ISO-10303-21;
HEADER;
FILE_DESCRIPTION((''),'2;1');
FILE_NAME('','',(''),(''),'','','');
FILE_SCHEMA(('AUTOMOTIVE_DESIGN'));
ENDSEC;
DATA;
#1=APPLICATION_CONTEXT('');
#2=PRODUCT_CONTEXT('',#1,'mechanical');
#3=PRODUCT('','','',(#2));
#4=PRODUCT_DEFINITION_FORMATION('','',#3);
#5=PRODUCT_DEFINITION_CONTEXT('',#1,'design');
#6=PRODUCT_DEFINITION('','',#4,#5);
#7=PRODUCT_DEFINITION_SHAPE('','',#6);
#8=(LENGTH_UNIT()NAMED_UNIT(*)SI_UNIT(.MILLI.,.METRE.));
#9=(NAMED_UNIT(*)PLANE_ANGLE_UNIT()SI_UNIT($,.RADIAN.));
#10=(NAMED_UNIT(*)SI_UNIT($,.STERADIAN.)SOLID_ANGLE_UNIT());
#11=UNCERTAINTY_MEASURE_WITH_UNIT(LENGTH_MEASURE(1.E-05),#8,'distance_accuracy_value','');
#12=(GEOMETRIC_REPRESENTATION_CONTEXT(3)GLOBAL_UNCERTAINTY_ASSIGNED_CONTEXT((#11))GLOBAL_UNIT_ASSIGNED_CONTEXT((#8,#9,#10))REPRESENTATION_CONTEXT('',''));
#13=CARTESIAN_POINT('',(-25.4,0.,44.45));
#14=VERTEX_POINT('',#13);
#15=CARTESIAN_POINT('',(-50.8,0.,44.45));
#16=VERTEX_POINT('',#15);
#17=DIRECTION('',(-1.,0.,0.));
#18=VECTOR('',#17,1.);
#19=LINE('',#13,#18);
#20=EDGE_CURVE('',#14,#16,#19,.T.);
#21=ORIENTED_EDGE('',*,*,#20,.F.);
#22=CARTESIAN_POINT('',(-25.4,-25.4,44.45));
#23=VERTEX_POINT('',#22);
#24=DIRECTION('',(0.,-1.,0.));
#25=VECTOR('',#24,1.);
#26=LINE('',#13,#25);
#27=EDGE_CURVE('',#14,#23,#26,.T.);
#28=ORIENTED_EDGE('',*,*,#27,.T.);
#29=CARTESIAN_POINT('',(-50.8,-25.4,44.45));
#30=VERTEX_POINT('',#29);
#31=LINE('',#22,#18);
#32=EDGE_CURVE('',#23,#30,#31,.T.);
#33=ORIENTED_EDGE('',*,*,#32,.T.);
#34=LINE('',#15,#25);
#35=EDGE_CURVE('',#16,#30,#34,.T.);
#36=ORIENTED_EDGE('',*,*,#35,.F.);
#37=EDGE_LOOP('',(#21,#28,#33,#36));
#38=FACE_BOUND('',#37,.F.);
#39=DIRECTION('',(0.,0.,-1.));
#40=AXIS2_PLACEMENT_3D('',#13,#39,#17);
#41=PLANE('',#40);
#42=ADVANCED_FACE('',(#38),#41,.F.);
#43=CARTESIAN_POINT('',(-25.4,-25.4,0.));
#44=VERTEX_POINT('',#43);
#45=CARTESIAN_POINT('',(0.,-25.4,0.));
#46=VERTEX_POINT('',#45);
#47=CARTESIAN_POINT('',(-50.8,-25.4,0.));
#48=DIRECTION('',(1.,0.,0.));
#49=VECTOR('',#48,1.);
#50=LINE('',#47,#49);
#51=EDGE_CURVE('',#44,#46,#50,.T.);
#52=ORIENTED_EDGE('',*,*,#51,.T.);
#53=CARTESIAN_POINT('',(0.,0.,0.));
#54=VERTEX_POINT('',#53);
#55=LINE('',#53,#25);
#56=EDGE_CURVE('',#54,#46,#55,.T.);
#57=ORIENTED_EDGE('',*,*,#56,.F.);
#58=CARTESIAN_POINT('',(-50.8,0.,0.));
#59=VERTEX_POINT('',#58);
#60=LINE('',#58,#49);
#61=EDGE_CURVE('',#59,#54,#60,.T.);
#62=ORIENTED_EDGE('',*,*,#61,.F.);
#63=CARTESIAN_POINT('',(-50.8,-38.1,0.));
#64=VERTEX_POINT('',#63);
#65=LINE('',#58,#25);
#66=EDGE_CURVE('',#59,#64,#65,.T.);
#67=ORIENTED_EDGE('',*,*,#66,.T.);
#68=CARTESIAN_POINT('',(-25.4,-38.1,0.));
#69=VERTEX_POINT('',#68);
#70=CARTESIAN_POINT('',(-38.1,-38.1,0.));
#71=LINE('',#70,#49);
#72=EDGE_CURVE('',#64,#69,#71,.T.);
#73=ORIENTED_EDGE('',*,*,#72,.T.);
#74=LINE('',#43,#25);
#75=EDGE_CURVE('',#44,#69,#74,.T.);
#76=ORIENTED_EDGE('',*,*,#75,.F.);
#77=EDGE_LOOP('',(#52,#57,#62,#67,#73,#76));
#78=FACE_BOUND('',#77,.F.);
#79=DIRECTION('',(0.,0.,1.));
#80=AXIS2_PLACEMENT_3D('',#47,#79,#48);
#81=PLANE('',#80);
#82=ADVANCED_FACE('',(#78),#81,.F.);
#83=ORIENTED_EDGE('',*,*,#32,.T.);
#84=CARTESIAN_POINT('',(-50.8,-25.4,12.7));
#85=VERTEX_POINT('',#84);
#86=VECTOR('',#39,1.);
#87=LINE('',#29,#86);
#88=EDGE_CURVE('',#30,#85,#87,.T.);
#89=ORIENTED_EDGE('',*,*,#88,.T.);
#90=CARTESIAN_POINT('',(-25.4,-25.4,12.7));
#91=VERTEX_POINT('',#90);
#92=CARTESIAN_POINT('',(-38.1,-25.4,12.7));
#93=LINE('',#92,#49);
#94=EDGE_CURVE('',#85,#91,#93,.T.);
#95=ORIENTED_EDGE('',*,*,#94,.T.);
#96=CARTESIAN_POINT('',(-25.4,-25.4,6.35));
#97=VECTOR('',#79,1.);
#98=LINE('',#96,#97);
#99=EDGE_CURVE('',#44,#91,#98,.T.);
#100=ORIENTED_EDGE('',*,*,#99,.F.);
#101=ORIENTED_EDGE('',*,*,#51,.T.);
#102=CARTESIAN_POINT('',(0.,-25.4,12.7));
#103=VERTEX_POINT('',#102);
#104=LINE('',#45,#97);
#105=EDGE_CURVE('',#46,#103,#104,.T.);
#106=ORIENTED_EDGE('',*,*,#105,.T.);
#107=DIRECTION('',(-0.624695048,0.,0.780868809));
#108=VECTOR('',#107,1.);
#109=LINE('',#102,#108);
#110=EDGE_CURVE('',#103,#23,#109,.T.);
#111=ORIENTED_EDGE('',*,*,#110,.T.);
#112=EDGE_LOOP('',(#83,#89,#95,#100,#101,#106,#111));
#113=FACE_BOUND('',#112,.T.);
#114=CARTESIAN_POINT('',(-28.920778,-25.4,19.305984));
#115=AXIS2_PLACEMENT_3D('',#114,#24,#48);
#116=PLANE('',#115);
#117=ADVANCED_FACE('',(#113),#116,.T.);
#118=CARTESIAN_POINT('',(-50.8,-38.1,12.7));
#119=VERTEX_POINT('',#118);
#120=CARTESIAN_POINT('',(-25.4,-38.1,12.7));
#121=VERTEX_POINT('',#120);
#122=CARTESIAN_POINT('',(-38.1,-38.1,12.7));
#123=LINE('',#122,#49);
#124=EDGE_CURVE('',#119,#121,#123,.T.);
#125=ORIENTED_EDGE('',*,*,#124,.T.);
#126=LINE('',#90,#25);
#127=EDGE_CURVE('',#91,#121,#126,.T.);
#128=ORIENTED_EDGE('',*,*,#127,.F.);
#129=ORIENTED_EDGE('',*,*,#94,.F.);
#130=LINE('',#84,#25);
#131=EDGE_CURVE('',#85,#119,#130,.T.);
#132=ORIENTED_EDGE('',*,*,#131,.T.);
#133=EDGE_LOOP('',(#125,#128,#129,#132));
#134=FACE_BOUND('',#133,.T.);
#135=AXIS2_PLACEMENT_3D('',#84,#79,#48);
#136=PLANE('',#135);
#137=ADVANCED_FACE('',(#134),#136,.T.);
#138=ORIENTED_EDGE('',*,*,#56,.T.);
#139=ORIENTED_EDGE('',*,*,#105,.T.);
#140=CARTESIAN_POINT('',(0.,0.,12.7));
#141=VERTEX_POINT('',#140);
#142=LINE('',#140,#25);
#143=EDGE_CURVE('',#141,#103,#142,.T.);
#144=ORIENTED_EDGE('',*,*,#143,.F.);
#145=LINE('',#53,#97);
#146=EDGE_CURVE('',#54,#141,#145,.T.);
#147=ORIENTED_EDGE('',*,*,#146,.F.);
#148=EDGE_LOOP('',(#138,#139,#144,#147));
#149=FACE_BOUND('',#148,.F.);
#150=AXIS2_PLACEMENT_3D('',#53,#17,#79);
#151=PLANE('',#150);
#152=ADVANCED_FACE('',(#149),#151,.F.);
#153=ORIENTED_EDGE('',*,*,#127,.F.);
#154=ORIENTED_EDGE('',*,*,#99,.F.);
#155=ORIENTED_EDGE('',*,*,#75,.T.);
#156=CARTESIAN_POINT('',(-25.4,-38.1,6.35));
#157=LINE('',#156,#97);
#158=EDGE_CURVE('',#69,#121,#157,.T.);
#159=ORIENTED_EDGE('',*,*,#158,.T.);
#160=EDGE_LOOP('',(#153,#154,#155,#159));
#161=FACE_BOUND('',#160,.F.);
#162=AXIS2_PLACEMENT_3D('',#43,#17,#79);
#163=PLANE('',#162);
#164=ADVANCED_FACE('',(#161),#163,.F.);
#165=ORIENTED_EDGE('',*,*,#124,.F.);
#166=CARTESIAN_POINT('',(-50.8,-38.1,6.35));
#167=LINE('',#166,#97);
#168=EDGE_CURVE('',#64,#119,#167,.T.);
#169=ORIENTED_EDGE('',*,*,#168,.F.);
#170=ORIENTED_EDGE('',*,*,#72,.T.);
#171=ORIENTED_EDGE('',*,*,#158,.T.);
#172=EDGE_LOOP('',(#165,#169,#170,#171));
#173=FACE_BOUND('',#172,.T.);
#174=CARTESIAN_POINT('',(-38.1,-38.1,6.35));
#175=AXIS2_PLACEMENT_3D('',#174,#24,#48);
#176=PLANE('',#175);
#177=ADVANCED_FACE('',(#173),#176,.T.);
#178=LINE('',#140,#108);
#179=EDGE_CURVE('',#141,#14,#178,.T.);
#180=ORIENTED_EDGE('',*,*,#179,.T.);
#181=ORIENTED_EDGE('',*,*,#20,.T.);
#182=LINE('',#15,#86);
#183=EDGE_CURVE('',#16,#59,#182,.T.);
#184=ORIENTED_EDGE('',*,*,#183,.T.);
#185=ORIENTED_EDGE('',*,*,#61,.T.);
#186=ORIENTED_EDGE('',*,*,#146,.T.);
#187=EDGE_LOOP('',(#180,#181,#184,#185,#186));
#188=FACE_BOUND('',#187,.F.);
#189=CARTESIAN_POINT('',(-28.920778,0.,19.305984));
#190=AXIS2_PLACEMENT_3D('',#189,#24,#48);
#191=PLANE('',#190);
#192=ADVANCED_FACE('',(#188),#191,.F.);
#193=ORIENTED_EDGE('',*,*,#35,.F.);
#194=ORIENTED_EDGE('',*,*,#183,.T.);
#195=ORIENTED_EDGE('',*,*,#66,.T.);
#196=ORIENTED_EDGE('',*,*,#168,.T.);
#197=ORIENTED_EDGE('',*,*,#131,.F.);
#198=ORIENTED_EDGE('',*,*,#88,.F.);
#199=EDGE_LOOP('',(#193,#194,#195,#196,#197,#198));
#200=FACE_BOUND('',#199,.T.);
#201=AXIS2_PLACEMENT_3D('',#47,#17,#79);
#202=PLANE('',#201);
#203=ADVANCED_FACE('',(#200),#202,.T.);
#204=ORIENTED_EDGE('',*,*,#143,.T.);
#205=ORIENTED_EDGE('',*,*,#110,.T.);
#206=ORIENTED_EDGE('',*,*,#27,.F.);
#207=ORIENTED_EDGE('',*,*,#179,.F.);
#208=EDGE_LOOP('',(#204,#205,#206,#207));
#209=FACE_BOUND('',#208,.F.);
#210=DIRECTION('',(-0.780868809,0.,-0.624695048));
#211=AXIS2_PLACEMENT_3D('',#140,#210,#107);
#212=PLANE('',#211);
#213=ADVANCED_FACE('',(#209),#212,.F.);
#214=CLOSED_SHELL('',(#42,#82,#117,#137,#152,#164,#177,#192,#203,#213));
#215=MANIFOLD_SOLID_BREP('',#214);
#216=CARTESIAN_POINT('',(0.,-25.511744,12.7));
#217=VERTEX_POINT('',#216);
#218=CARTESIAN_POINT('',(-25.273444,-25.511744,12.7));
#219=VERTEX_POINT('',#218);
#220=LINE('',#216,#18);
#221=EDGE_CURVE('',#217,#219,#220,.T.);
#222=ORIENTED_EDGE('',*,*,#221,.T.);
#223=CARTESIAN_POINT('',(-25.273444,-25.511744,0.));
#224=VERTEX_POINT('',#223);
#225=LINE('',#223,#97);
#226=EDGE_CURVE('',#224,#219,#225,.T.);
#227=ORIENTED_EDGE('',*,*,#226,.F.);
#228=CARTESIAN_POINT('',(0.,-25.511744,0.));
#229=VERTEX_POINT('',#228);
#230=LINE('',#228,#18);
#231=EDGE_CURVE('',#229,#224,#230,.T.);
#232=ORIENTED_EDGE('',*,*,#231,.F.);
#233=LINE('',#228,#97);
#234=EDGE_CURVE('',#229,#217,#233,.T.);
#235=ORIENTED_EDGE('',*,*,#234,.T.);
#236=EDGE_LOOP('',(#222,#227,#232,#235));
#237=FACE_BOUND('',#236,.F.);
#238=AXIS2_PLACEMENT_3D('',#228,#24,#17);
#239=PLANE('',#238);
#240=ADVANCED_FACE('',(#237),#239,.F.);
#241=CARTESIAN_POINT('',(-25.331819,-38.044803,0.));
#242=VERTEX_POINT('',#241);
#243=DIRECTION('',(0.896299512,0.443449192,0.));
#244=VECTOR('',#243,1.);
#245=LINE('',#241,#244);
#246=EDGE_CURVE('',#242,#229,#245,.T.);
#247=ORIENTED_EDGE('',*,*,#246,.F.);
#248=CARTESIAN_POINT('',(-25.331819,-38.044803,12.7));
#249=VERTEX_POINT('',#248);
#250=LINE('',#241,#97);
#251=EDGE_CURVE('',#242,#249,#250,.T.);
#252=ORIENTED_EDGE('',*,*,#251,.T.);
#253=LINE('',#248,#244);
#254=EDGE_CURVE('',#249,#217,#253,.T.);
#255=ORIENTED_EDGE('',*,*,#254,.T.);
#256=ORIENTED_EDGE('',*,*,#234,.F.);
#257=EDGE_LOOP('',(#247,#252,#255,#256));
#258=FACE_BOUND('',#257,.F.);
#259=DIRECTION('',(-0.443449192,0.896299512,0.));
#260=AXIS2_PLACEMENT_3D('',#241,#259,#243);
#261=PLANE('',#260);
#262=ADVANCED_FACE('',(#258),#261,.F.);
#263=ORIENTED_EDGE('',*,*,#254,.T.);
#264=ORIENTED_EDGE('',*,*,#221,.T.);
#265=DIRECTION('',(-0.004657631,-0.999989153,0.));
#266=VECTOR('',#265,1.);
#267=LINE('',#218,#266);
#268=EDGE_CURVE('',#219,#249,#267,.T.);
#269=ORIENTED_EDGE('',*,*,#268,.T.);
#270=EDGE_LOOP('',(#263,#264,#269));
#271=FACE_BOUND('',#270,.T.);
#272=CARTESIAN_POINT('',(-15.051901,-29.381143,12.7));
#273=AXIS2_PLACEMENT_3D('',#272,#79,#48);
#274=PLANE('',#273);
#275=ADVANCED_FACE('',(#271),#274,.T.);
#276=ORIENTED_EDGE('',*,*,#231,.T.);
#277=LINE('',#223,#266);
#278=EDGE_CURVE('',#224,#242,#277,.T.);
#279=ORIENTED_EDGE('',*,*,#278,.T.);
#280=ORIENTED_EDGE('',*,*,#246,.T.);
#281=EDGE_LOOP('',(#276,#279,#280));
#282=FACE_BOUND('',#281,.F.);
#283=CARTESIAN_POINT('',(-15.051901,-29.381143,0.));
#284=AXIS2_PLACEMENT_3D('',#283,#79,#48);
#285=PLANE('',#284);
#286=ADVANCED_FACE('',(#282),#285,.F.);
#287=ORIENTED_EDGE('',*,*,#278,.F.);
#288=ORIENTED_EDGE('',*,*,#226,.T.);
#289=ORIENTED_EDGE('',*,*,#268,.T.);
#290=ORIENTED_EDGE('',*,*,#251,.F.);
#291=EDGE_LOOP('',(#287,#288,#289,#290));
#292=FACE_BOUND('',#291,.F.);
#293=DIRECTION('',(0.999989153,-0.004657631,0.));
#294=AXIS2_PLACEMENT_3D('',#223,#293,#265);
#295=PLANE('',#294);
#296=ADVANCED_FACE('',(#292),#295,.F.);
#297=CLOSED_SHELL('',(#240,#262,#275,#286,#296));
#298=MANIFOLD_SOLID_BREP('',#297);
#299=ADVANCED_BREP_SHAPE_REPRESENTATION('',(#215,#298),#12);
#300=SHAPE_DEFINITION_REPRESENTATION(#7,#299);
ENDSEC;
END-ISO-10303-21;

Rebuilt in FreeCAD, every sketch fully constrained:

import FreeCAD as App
import Part
import Sketcher
Q = App.Units.Quantity


def add_polygon(sketch, points):
    """Adds a closed chain of lines whose ends are joined by coincident constraints."""
    first, n = sketch.GeometryCount, len(points)
    for a, b in zip(points, points[1:] + points[:1]):
        sketch.addGeometry(Part.LineSegment(App.Vector(*a, 0), App.Vector(*b, 0)), False)
    for i in range(n):
        sketch.addConstraint(Sketcher.Constraint("Coincident", first + i, 2, first + (i + 1) % n, 1))

doc = App.newDocument("Part")
params = doc.addObject("Spreadsheet::Sheet", "Params")
for row, (alias, value) in enumerate([
    ("sketch1_width", "1 in"),
    ("sketch1_width2", "2 in"),
    ("sketch1_height", "0.5 in"),
    ("sketch1_height2", "1.75 in"),
    ("pad1_length", "1 in"),
    ("sketch2_width", "1 in"),
    ("sketch2_height", "0.5 in"),
    ("pad2_length", "0.5 in"),
    ("pad3_length", "0.5 in"),
], start=1):
    params.set(f"A{row}", alias)
    params.set(f"B{row}", "=" + value)
    params.setAlias(f"B{row}", alias)

body = doc.addObject("PartDesign::Body", "Body")

# Sketch on XZ plane
sketch1 = body.newObject("Sketcher::SketchObject", "Sketch")
sketch1.AttachmentSupport = (doc.getObject("XZ_Plane"), [""])
sketch1.MapMode = "FlatFace"
add_polygon(sketch1, [(0, 0), (0, 13), (-25, 44), (-51, 44), (-51, 0)])  # lines 0-4
sketch1.addConstraint([
    Sketcher.Constraint("Vertical", 0),
    Sketcher.Constraint("Horizontal", 2),
    Sketcher.Constraint("Vertical", 3),
    Sketcher.Constraint("Horizontal", 4),
    Sketcher.Constraint("Coincident", 4, 2, -1, 1),
    Sketcher.Constraint("DistanceX", 2, 2, 2, 1, Q("1 in")),
    Sketcher.Constraint("DistanceX", 4, 1, 4, 2, Q("2 in")),
    Sketcher.Constraint("DistanceY", 0, 1, 0, 2, Q("0.5 in")),
    Sketcher.Constraint("DistanceY", 3, 2, 3, 1, Q("1.75 in")),
])
sketch1.setExpression("Constraints[10]", "Params.sketch1_width")
sketch1.setExpression("Constraints[11]", "Params.sketch1_width2")
sketch1.setExpression("Constraints[12]", "Params.sketch1_height")
sketch1.setExpression("Constraints[13]", "Params.sketch1_height2")
pad1 = body.newObject("PartDesign::Pad", "Pad")
pad1.Profile = sketch1
pad1.setExpression("Length", "Params.pad1_length")

# Sketch on XZ plane
sketch2 = body.newObject("Sketcher::SketchObject", "Sketch001")
sketch2.AttachmentSupport = (doc.getObject("XZ_Plane"), [""])
sketch2.MapMode = "FlatFace"
sketch2.AttachmentOffset = App.Placement(App.Vector(0, 0, 1 * 25.4), App.Rotation())
add_polygon(sketch2, [(-51, 13), (-51, 0), (-25, 0), (-25, 13)])  # lines 0-3
sketch2.addConstraint([
    Sketcher.Constraint("Vertical", 0),
    Sketcher.Constraint("Horizontal", 1),
    Sketcher.Constraint("Vertical", 2),
    Sketcher.Constraint("Horizontal", 3),
    Sketcher.Constraint("PointOnObject", 0, 2, -1),
    Sketcher.Constraint("DistanceX", 1, 1, 1, 2, Q("1 in")),
    Sketcher.Constraint("DistanceY", 0, 2, 0, 1, Q("0.5 in")),
    Sketcher.Constraint("DistanceX", 0, 2, -1, 1, Q("2 in")),
])
sketch2.setExpression("Constraints[9]", "Params.sketch2_width")
sketch2.setExpression("Constraints[10]", "Params.sketch2_height")
pad2 = body.newObject("PartDesign::Pad", "Pad001")
pad2.Profile = sketch2
pad2.setExpression("Length", "Params.pad2_length")
body2 = doc.addObject("PartDesign::Body", "Body001")

# Sketch on XY plane
sketch3 = body2.newObject("Sketcher::SketchObject", "Sketch002")
sketch3.AttachmentSupport = (doc.getObject("XY_Plane001"), [""])
sketch3.MapMode = "FlatFace"
add_polygon(sketch3, [(-25, -26), (-25, -38), (0, -26)])  # lines 0-2
sketch3.addConstraint([
    Sketcher.Constraint("Horizontal", 2),
    Sketcher.Constraint("PointOnObject", 1, 2, -2),
    Sketcher.Constraint("Distance", 1, 28.262672),
    Sketcher.Constraint("DistanceX", 2, 2, 2, 1, 25.273444),
    Sketcher.Constraint("DistanceX", 0, 2, -1, 1, 25.331819),
    Sketcher.Constraint("DistanceY", 0, 2, -1, 1, 38.044803),
])
pad3 = body2.newObject("PartDesign::Pad", "Pad002")
pad3.Profile = sketch3
pad3.setExpression("Length", "Params.pad3_length")

doc.recompute()
